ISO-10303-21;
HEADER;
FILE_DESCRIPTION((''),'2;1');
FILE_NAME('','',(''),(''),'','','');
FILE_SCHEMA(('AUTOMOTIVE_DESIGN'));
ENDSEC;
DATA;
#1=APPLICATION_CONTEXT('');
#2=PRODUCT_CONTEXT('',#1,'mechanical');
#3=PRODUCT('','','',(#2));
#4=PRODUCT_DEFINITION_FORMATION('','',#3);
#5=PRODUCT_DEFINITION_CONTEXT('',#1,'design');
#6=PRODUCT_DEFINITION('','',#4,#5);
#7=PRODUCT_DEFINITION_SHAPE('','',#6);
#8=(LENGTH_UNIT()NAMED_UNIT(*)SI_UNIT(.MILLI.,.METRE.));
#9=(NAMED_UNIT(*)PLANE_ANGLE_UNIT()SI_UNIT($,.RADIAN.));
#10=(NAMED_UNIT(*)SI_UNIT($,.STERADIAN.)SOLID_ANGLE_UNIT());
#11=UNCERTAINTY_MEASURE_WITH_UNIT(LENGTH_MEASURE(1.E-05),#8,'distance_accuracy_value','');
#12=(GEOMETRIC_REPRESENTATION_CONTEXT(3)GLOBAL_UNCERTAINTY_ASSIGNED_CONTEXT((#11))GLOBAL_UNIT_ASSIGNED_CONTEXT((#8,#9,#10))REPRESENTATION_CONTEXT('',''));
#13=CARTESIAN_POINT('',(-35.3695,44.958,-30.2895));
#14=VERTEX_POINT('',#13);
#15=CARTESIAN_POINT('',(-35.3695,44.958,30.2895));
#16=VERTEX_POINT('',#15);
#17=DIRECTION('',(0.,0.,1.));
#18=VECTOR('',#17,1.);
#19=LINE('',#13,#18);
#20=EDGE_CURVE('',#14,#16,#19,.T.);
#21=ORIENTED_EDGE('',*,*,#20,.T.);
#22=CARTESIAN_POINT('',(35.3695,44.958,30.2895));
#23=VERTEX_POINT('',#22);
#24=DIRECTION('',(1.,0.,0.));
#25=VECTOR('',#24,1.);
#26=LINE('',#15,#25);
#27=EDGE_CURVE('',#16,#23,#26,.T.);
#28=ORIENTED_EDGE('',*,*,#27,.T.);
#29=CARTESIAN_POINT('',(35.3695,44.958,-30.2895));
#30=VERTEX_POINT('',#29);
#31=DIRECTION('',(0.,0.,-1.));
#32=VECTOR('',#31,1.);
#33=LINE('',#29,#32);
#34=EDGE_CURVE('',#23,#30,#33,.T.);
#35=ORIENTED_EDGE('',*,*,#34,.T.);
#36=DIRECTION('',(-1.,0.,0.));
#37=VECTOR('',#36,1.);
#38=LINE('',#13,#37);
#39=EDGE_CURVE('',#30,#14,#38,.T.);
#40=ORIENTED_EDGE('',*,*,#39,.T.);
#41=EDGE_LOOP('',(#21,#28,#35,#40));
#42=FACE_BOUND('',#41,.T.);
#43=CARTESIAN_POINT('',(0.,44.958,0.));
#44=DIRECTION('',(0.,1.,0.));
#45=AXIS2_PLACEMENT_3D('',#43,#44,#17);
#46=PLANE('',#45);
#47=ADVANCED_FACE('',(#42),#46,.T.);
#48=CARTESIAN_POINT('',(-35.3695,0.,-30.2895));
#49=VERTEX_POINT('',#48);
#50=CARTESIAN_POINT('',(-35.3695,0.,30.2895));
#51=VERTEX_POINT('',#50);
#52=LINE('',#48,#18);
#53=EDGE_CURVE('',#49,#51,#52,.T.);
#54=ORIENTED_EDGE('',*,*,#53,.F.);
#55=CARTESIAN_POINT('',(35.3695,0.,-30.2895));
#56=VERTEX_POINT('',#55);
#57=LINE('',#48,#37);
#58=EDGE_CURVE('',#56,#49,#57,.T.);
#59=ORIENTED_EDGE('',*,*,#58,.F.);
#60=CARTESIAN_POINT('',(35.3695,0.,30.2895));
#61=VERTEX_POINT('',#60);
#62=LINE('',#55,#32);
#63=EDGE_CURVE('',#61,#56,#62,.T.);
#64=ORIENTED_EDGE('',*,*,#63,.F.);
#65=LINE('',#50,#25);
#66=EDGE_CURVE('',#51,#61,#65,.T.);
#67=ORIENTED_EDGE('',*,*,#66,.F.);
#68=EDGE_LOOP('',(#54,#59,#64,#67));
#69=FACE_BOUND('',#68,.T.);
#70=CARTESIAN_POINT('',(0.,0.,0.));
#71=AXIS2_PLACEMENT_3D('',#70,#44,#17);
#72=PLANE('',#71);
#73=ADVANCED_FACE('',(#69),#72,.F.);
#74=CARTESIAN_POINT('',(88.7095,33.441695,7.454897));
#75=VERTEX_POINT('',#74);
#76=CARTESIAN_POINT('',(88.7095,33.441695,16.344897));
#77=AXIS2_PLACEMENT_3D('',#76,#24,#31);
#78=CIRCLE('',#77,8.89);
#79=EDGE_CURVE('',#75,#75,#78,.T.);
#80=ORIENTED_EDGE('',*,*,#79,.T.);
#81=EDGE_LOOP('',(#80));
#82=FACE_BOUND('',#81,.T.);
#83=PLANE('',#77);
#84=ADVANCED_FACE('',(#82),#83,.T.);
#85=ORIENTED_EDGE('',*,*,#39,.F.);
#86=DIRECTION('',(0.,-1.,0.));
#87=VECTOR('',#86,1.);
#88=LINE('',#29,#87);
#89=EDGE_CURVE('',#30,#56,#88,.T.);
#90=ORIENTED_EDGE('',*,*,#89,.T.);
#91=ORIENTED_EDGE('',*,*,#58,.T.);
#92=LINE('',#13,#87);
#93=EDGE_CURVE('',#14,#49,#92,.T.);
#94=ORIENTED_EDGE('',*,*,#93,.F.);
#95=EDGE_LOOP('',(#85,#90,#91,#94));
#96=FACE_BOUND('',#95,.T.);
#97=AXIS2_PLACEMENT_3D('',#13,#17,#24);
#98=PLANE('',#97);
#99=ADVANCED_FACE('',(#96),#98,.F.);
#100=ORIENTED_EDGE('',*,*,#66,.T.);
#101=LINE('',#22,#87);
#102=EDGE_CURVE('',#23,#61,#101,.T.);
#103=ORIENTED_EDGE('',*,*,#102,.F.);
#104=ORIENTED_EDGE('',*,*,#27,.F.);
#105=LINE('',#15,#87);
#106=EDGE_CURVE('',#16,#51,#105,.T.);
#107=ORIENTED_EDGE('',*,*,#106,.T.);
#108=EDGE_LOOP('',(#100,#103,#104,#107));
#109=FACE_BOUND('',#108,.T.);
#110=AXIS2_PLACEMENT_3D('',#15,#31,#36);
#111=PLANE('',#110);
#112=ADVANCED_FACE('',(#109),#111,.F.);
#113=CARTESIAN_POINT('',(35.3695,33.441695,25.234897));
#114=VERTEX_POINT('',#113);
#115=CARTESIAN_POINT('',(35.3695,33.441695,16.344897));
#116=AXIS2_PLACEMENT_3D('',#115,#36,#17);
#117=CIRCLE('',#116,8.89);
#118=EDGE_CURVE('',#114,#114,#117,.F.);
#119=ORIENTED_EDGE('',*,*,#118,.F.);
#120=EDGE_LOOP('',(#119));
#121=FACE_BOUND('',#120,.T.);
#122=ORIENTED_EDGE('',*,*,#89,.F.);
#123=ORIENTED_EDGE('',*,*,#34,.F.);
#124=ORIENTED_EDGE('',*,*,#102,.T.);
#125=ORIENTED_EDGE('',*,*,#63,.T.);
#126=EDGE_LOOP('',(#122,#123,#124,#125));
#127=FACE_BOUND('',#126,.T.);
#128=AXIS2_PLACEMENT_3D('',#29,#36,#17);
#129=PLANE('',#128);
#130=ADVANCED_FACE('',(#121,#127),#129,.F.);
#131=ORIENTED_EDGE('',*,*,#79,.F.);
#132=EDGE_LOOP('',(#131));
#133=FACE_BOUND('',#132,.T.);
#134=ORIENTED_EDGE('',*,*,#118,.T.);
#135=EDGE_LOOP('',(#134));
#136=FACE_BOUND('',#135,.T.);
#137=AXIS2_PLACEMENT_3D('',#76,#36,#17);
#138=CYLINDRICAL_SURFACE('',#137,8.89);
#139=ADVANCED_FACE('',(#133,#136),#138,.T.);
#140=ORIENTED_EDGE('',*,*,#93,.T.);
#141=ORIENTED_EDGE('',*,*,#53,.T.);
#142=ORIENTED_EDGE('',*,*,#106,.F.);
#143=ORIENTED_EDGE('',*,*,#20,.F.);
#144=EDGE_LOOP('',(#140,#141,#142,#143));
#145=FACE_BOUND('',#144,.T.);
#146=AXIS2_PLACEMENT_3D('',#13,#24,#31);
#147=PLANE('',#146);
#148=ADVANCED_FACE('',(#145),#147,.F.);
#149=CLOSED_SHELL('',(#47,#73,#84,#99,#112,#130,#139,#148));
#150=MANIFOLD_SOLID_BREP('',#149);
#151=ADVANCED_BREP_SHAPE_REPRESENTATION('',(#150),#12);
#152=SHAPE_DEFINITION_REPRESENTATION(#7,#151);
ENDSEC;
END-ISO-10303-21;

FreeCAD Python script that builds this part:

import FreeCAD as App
import Part
import Sketcher
Q = App.Units.Quantity


def add_polygon(sketch, points):
    """Adds a closed chain of lines whose ends are joined by coincident constraints."""
    first, n = sketch.GeometryCount, len(points)
    for a, b in zip(points, points[1:] + points[:1]):
        sketch.addGeometry(Part.LineSegment(App.Vector(*a, 0), App.Vector(*b, 0)), False)
    for i in range(n):
        sketch.addConstraint(Sketcher.Constraint("Coincident", first + i, 2, first + (i + 1) % n, 1))

doc = App.newDocument("Part")
body = doc.addObject("PartDesign::Body", "Body")

sketch1 = body.newObject("Sketcher::SketchObject", "Sketch")
sketch1.AttachmentSupport = (doc.getObject("XZ_Plane"), [""])
sketch1.MapMode = "FlatFace"
add_polygon(sketch1, [(-35, -30), (-35, 30), (35, 30), (35, -30)])
sketch1.addConstraint([
    Sketcher.Constraint("Vertical", 0),
    Sketcher.Constraint("Horizontal", 1),
    Sketcher.Constraint("Vertical", 2),
    Sketcher.Constraint("Horizontal", 3),
    Sketcher.Constraint("Symmetric", 0, 2, 2, 2, -1, 1),
    Sketcher.Constraint("DistanceX", 1, 1, 1, 2, Q("2.785 in")),
    Sketcher.Constraint("DistanceY", 0, 1, 0, 2, Q("2.385 in")),
])
pad1 = body.newObject("PartDesign::Pad", "Pad")
pad1.Profile = sketch1
pad1.Length = Q("1.77 in")
pad1.Reversed = True

sketch2 = body.newObject("Sketcher::SketchObject", "Sketch001")
sketch2.AttachmentSupport = (doc.getObject("YZ_Plane"), [""])
sketch2.MapMode = "FlatFace"
sketch2.AttachmentOffset = App.Placement(App.Vector(0, 0, 1.3925 * 25.4), App.Rotation())
sketch2.addGeometry(Part.Circle(App.Vector(33, 16, 0), App.Vector(0, 0, 1), 9), False)
sketch2.addConstraint([
    Sketcher.Constraint("Diameter", 0, Q("0.7 in")),
    Sketcher.Constraint("DistanceY", -1, 1, 0, 3, Q("0.6434999 in")),
    Sketcher.Constraint("DistanceX", -1, 1, 0, 3, Q("33.441695 mm")),
])
pad2 = body.newObject("PartDesign::Pad", "Pad001")
pad2.Profile = sketch2
pad2.Length = Q("2.1 in")

doc.recompute()
